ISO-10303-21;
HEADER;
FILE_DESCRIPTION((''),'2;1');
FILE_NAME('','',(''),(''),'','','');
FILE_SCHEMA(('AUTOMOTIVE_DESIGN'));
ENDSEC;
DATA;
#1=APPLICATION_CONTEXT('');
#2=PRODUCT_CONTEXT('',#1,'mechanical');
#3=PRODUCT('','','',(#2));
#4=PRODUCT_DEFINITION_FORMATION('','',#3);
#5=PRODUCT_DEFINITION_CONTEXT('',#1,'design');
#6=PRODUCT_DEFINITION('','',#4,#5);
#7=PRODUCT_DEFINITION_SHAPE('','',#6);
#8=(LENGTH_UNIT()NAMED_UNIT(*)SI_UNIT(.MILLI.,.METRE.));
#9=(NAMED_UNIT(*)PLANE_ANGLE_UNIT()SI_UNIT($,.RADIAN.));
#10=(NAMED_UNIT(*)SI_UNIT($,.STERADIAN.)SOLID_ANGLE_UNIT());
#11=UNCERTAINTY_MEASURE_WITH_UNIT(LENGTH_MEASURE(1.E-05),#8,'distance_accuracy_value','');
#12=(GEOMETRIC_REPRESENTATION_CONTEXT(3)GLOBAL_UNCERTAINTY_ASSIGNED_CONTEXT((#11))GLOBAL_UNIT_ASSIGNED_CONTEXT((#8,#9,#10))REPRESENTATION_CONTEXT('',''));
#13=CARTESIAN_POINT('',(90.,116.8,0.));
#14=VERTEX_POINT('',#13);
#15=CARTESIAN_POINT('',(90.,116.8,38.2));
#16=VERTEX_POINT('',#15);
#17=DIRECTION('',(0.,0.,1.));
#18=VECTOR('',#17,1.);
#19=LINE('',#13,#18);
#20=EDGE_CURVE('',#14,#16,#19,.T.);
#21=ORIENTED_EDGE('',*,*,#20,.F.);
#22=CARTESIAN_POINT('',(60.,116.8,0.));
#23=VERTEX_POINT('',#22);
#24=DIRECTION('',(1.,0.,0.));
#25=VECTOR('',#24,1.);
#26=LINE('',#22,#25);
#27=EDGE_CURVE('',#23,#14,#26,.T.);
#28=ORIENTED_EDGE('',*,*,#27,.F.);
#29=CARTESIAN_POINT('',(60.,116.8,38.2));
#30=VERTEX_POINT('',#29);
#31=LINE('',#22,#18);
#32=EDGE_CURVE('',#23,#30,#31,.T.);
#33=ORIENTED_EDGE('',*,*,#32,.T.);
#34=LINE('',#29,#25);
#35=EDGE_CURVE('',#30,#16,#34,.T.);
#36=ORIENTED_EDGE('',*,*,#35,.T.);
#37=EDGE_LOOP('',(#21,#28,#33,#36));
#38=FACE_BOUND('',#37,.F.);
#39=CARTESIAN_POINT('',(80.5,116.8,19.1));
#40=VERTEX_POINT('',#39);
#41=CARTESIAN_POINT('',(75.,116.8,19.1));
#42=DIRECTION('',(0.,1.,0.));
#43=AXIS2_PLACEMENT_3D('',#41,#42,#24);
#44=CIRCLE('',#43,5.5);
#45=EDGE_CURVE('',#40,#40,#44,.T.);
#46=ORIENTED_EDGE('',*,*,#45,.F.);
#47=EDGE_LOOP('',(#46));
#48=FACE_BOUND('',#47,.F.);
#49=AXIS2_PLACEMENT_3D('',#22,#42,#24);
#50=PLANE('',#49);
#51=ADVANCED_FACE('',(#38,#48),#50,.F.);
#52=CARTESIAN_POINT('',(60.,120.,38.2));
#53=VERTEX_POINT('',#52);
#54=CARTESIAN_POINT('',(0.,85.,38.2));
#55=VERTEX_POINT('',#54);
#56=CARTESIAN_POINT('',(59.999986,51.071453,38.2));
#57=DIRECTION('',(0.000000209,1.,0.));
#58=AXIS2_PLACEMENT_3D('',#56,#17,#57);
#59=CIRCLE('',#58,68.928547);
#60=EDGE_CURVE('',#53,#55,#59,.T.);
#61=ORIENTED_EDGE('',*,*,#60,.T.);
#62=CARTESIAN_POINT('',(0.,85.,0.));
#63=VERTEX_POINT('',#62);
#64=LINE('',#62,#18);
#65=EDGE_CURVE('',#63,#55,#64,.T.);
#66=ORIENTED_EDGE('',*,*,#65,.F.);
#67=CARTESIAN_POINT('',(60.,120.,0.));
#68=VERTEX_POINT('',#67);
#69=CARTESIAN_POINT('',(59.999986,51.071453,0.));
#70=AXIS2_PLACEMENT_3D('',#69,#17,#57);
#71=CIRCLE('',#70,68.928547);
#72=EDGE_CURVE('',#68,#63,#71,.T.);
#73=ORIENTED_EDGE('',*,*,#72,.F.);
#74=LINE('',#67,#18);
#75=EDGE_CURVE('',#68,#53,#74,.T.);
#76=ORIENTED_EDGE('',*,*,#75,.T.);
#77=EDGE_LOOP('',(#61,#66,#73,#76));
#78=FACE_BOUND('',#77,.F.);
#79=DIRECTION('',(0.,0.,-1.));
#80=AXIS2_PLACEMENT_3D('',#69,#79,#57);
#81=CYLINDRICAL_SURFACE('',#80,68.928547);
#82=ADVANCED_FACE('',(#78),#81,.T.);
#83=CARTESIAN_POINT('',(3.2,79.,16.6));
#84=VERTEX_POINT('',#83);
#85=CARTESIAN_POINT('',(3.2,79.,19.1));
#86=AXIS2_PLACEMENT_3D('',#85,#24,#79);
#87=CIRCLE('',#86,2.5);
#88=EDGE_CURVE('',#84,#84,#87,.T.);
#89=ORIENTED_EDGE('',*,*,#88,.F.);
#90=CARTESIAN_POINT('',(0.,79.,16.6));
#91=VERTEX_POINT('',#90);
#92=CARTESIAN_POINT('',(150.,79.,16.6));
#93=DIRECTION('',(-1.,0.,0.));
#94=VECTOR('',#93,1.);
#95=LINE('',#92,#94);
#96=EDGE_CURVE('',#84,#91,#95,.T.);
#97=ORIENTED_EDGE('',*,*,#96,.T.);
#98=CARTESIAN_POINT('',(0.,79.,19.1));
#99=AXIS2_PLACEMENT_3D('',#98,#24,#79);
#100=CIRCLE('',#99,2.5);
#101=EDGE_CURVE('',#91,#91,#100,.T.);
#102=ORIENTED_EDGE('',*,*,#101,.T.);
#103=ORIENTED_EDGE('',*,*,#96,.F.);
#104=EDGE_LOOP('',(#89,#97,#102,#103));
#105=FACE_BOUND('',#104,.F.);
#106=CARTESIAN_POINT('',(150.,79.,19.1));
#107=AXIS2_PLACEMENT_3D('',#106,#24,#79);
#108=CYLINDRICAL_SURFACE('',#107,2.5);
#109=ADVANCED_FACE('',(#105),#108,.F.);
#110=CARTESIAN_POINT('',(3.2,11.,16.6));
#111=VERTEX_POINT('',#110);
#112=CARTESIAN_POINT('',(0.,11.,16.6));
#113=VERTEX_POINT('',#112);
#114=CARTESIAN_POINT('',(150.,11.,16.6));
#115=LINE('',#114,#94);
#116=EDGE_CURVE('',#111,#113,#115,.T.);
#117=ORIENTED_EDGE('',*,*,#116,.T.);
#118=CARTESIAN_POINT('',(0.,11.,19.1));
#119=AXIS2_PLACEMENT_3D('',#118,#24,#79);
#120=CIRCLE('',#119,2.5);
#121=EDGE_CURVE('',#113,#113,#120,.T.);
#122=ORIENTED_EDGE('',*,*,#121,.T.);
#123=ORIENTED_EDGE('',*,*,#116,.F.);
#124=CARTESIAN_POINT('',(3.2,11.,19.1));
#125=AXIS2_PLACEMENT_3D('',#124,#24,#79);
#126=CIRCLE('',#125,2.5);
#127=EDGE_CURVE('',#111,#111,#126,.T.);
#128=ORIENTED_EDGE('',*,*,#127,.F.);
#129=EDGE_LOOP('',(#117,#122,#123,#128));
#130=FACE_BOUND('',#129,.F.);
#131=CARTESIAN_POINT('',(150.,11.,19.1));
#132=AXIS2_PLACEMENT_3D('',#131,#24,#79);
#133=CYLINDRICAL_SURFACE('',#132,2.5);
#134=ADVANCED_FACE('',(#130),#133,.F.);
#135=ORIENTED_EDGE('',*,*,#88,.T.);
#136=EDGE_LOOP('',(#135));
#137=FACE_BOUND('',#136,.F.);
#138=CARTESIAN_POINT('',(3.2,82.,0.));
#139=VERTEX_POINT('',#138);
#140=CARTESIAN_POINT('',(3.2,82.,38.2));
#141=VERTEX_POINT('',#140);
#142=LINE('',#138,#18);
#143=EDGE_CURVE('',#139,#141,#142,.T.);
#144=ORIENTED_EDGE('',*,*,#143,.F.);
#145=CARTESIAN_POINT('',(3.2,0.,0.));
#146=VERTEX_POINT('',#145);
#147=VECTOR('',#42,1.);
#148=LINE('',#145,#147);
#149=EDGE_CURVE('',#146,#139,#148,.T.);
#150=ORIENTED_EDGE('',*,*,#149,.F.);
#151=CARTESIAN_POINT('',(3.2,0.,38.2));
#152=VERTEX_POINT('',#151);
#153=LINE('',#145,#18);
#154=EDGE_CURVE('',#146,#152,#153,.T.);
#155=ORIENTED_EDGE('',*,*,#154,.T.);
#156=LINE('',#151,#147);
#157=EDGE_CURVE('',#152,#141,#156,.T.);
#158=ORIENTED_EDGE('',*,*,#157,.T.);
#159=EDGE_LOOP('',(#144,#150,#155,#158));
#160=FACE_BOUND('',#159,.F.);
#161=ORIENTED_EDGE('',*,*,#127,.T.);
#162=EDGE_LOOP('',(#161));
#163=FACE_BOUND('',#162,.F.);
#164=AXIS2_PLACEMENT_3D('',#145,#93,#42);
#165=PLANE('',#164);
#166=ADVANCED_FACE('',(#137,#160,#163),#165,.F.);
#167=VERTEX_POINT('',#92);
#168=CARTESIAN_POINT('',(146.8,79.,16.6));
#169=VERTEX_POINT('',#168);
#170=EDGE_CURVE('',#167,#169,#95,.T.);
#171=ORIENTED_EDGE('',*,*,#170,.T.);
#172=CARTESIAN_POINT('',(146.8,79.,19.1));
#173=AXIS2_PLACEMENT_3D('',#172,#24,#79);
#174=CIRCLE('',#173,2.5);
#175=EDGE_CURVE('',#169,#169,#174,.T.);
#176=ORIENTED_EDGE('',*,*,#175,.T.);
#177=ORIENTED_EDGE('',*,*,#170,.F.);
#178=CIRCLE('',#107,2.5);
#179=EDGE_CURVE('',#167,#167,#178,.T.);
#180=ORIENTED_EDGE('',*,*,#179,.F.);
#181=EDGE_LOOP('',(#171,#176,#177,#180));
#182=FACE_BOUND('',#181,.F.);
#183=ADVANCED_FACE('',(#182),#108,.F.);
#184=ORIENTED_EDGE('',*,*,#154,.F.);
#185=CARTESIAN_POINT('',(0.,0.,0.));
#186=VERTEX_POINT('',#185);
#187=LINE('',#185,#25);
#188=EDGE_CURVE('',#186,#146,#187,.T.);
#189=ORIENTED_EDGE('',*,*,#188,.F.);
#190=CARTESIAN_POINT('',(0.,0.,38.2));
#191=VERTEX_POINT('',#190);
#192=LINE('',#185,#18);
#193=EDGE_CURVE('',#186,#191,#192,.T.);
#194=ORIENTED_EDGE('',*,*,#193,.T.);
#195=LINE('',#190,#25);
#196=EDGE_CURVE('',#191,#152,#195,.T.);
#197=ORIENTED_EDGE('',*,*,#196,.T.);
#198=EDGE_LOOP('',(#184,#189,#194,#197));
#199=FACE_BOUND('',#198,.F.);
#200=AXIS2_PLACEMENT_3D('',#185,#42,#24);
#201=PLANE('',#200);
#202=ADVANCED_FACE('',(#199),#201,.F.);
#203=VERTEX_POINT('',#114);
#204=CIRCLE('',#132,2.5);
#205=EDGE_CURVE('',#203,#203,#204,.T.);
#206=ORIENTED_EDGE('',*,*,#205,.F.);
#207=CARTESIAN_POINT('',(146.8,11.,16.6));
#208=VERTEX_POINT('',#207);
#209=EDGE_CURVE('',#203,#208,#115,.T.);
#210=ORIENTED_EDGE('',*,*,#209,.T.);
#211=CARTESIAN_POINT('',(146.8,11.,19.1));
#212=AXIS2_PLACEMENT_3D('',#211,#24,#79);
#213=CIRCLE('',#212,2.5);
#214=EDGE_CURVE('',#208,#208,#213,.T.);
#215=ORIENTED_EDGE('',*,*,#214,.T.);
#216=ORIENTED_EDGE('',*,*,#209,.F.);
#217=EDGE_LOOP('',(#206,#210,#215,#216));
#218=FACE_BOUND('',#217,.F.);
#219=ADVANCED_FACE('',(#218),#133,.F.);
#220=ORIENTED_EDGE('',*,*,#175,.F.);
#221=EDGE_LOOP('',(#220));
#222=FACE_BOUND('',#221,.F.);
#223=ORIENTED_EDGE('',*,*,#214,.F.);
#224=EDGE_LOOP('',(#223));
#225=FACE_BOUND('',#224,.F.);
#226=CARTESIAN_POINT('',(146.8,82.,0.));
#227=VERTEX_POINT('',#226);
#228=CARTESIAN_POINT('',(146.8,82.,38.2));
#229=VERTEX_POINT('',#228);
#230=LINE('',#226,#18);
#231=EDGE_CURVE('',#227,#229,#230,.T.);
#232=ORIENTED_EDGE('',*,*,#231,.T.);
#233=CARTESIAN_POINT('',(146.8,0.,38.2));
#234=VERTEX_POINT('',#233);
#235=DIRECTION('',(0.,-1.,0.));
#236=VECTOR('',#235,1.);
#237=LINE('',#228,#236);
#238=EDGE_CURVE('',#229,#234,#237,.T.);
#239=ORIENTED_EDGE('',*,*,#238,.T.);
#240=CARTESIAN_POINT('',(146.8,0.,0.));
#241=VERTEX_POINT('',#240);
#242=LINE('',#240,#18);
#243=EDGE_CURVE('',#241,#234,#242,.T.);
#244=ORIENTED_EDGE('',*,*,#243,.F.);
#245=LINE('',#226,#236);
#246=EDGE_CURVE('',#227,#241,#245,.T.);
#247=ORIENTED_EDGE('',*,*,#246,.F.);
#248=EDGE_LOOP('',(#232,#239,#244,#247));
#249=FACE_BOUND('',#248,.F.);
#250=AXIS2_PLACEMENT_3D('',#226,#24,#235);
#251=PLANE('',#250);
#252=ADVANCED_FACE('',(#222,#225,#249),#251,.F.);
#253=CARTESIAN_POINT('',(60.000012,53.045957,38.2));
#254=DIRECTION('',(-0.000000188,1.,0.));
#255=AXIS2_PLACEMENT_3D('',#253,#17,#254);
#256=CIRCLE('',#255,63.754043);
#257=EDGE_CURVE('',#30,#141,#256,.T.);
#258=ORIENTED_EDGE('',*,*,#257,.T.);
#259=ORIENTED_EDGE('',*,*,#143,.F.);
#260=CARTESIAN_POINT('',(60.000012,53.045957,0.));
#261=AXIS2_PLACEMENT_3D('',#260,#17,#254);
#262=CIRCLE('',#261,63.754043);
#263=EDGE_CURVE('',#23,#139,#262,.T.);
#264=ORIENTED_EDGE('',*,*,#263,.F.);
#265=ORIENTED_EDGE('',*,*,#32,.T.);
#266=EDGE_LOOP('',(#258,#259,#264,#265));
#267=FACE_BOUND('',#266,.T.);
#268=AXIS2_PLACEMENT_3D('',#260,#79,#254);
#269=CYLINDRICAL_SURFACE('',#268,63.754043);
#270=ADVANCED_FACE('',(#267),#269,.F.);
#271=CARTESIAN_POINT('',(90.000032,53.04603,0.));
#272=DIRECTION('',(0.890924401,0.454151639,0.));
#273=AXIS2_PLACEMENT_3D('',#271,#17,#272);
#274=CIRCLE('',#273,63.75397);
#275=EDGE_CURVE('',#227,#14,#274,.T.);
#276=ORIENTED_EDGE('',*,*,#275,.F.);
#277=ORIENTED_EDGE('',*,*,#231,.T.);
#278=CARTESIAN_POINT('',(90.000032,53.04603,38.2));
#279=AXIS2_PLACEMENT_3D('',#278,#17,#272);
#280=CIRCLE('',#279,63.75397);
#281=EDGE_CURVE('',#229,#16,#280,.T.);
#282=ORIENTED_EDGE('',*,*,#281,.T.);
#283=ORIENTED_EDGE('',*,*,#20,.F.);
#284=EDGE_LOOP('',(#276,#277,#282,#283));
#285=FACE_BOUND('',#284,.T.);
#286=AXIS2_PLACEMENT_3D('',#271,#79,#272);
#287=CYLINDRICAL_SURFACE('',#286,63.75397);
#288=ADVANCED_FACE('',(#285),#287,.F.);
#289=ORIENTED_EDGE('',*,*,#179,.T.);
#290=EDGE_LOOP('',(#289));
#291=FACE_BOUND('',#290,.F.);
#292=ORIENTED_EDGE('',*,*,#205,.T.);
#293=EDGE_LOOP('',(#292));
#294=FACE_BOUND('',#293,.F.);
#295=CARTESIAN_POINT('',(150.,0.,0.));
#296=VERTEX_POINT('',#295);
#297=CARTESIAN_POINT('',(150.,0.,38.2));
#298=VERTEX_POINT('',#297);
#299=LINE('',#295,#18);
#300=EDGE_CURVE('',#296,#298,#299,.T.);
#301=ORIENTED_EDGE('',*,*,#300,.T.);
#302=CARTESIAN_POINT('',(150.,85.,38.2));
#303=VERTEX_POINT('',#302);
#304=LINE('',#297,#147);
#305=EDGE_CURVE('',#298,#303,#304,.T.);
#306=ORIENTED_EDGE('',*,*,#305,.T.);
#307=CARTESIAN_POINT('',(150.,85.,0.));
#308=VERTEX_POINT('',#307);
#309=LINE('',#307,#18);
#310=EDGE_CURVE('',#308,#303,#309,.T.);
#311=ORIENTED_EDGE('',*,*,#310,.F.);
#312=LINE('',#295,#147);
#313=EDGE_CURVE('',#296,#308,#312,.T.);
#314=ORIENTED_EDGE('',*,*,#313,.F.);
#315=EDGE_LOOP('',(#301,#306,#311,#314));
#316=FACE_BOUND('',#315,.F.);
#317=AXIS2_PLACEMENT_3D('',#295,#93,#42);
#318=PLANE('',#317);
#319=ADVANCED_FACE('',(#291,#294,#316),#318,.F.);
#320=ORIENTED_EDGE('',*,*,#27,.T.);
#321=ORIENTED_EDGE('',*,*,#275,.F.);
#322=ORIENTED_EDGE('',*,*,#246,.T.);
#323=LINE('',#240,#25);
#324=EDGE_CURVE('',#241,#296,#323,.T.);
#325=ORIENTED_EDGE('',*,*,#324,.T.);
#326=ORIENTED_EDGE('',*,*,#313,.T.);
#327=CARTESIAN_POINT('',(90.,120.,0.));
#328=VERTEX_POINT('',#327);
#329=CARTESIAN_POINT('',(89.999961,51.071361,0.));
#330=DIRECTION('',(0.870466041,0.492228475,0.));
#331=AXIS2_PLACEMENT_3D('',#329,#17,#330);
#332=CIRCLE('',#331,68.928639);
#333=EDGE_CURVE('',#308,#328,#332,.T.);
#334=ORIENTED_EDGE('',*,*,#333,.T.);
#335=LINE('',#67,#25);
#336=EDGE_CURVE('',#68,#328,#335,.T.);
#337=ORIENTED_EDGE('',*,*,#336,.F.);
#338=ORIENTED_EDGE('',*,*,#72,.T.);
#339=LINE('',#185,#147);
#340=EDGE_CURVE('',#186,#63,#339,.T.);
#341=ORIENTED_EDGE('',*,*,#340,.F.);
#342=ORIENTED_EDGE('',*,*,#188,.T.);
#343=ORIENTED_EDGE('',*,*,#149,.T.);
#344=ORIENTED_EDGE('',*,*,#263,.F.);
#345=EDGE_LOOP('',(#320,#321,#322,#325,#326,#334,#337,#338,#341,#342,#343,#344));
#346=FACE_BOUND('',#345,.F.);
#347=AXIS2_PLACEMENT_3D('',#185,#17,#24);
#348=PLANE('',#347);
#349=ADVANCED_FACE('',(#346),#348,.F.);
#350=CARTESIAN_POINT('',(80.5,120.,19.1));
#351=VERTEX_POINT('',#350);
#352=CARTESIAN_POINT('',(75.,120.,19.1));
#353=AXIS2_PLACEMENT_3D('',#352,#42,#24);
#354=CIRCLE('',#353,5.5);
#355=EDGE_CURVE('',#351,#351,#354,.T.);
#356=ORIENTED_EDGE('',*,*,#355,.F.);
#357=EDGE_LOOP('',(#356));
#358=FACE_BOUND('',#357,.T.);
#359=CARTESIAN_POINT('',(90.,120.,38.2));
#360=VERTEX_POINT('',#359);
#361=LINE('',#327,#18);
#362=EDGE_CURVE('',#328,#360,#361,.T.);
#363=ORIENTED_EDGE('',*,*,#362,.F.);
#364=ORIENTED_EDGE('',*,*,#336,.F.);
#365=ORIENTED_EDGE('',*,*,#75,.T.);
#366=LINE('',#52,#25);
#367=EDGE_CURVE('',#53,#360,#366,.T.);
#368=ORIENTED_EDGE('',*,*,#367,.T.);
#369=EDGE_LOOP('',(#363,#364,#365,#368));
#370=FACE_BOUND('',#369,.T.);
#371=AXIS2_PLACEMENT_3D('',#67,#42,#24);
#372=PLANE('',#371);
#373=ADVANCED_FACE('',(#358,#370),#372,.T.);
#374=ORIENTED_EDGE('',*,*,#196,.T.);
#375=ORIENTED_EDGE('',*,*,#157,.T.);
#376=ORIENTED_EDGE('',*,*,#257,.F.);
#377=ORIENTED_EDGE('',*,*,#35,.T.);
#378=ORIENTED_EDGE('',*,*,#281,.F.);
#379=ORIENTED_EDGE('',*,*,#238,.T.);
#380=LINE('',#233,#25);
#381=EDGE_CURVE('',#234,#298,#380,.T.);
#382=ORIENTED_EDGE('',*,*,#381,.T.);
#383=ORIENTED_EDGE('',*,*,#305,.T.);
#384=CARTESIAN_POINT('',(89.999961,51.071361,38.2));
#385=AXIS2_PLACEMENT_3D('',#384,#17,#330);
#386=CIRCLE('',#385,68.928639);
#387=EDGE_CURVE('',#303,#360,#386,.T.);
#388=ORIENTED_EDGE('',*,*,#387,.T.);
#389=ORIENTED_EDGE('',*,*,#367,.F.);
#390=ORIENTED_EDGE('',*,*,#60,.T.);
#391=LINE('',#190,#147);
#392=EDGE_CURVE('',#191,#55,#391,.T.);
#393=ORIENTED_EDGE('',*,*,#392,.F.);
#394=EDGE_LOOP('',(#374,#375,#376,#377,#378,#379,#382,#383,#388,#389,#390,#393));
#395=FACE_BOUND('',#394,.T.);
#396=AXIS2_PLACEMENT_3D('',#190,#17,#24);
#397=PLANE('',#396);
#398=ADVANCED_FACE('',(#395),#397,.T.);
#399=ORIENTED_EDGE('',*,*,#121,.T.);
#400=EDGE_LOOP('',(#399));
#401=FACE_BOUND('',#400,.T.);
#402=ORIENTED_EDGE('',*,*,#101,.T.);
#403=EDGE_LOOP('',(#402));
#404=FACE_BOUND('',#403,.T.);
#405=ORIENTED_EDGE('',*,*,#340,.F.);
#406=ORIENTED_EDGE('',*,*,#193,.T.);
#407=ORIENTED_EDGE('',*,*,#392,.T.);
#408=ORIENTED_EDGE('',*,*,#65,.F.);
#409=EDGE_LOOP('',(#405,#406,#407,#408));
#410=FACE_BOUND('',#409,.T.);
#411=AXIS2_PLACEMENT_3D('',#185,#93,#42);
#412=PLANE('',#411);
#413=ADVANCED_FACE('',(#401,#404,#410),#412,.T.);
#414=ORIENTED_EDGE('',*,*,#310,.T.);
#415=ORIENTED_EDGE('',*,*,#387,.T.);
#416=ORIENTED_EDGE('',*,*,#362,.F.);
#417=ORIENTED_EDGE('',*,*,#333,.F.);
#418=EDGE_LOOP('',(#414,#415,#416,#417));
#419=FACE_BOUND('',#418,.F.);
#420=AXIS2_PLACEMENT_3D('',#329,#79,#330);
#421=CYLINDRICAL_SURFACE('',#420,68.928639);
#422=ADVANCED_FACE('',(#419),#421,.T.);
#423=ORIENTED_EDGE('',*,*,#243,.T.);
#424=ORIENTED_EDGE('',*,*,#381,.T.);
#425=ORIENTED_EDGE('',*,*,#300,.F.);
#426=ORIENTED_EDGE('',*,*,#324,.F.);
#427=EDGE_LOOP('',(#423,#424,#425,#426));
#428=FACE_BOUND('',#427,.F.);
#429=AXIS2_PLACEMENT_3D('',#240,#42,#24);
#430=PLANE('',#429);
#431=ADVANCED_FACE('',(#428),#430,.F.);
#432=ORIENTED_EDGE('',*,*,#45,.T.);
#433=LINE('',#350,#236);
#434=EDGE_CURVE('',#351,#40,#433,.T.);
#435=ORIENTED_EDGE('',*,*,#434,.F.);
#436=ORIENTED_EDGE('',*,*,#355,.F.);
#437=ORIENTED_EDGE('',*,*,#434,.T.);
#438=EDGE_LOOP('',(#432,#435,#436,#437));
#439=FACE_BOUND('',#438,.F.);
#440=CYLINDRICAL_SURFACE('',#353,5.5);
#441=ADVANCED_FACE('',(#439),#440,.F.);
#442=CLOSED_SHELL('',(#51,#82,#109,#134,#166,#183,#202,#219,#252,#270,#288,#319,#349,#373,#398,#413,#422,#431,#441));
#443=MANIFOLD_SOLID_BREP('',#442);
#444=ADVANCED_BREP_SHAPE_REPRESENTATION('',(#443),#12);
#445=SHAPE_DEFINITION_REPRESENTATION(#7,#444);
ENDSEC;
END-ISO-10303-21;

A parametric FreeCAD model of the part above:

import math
import FreeCAD as App
import Part
import Sketcher
Q = App.Units.Quantity

doc = App.newDocument("Part")
body = doc.addObject("PartDesign::Body", "Body")

sketch1 = body.newObject("Sketcher::SketchObject", "Sketch")
sketch1.AttachmentSupport = (doc.getObject("XY_Plane"), [""])
sketch1.MapMode = "FlatFace"
sketch1.addGeometry([
    Part.LineSegment(App.Vector(0, 85, 0), App.Vector(0, 0, 0)),
    Part.LineSegment(App.Vector(0, 0, 0), App.Vector(3.2, 0, 0)),
    Part.LineSegment(App.Vector(3.2, 0, 0), App.Vector(3.2, 82, 0)),
    Part.ArcOfCircle(Part.Circle(App.Vector(60, 53, 0), App.Vector(0, 0, 1), 63.8), math.radians(90), math.radians(153)),
    Part.LineSegment(App.Vector(60, 116.8, 0), App.Vector(90, 116.8, 0)),
    Part.ArcOfCircle(Part.Circle(App.Vector(90, 53, 0), App.Vector(0, 0, 1), 63.8), math.radians(27), math.radians(90)),
    Part.LineSegment(App.Vector(146.8, 82, 0), App.Vector(146.8, 0, 0)),
    Part.LineSegment(App.Vector(146.8, 0, 0), App.Vector(150, 0, 0)),
    Part.LineSegment(App.Vector(150, 0, 0), App.Vector(150, 85, 0)),
    Part.ArcOfCircle(Part.Circle(App.Vector(90, 51.1, 0), App.Vector(0, 0, 1), 68.9), math.radians(29), math.radians(90)),
    Part.LineSegment(App.Vector(90, 120, 0), App.Vector(60, 120, 0)),
    Part.ArcOfCircle(Part.Circle(App.Vector(60, 51.1, 0), App.Vector(0, 0, 1), 68.9), math.radians(90), math.radians(151)),
], False)
sketch1.addConstraint([
    Sketcher.Constraint("Coincident", 0, 2, 1, 1),
    Sketcher.Constraint("Coincident", 1, 2, 2, 1),
    Sketcher.Constraint("Coincident", 2, 2, 3, 2),
    Sketcher.Constraint("Tangent", 3, 1, 4, 1),
    Sketcher.Constraint("Tangent", 4, 2, 5, 2),
    Sketcher.Constraint("Coincident", 5, 1, 6, 1),
    Sketcher.Constraint("Coincident", 6, 2, 7, 1),
    Sketcher.Constraint("Coincident", 7, 2, 8, 1),
    Sketcher.Constraint("Coincident", 8, 2, 9, 1),
    Sketcher.Constraint("Tangent", 9, 2, 10, 1),
    Sketcher.Constraint("Tangent", 10, 2, 11, 1),
    Sketcher.Constraint("Coincident", 11, 2, 0, 1),
    Sketcher.Constraint("Vertical", 0),
    Sketcher.Constraint("Horizontal", 1),
    Sketcher.Constraint("Vertical", 2),
    Sketcher.Constraint("Horizontal", 4),
    Sketcher.Constraint("Vertical", 6),
    Sketcher.Constraint("Horizontal", 7),
    Sketcher.Constraint("Vertical", 8),
    Sketcher.Constraint("Horizontal", 10),
    Sketcher.Constraint("Coincident", 0, 2, -1, 1),
    Sketcher.Constraint("Equal", 3, 5),
    Sketcher.Constraint("Equal", 9, 11),
    Sketcher.Constraint("PointOnObject", 6, 2, -1),
    Sketcher.Constraint("Horizontal", 2, 2, 5, 1),
    Sketcher.Constraint("Horizontal", 8, 2, 11, 2),
    Sketcher.Constraint("Vertical", 5, 3, 9, 3),
    Sketcher.Constraint("Vertical", 3, 3, 11, 3),
    Sketcher.Constraint("DistanceX", 4, 1, 4, 2, Q("30 mm")),
    Sketcher.Constraint("DistanceY", 0, 2, 0, 1, Q("85 mm")),
    Sketcher.Constraint("DistanceX", 1, 1, 1, 2, Q("3.2 mm")),
    Sketcher.Constraint("DistanceX", -1, 1, 7, 2, Q("150 mm")),
    Sketcher.Constraint("DistanceY", -1, 1, 9, 2, Q("120 mm")),
    Sketcher.Constraint("DistanceY", 5, 1, 8, 2, Q("3 mm")),
    Sketcher.Constraint("DistanceY", 4, 2, 9, 2, Q("3.2 mm")),
])
pad1 = body.newObject("PartDesign::Pad", "Pad")
pad1.Profile = sketch1
pad1.Length = 38.2

sketch2 = body.newObject("Sketcher::SketchObject", "Sketch001")
sketch2.AttachmentSupport = (doc.getObject("YZ_Plane"), [""])
sketch2.MapMode = "FlatFace"
sketch2.AttachmentOffset = App.Placement(App.Vector(0, 0, 150), App.Rotation())
sketch2.addGeometry([
    Part.Circle(App.Vector(11, 19.1, 0), App.Vector(0, 0, 1), 2.5),
    Part.Circle(App.Vector(79, 19.1, 0), App.Vector(0, 0, 1), 2.5),
], False)
sketch2.addConstraint([
    Sketcher.Constraint("Equal", 0, 1),
    Sketcher.Constraint("Horizontal", 0, 3, 1, 3),
    Sketcher.Constraint("Diameter", 0, Q("5 mm")),
    Sketcher.Constraint("DistanceX", -1, 1, 0, 3, Q("11 mm")),
    Sketcher.Constraint("DistanceX", 0, 3, 1, 3, Q("68 mm")),
    Sketcher.Constraint("DistanceY", -1, 1, 0, 3, Q("19.1 mm")),
])
pocket1 = body.newObject("PartDesign::Pocket", "Pocket")
pocket1.Profile = sketch2
pocket1.Type = "ThroughAll"

sketch3 = body.newObject("Sketcher::SketchObject", "Sketch002")
sketch3.AttachmentSupport = (doc.getObject("XZ_Plane"), [""])
sketch3.MapMode = "FlatFace"
sketch3.AttachmentOffset = App.Placement(App.Vector(0, 0, -120), App.Rotation())
sketch3.addGeometry(Part.Circle(App.Vector(75, 19, 0), App.Vector(0, 0, 1), 6), False)
sketch3.addConstraint([
    Sketcher.Constraint("Diameter", 0, Q("11 mm")),
    Sketcher.Constraint("DistanceX", -1, 1, 0, 3, Q("75 mm")),
    Sketcher.Constraint("DistanceY", -1, 1, 0, 3, Q("19.1 mm")),
])
pocket2 = body.newObject("PartDesign::Pocket", "Pocket001")
pocket2.Profile = sketch3
pocket2.Length = 10
pocket2.Reversed = True

doc.recompute()
